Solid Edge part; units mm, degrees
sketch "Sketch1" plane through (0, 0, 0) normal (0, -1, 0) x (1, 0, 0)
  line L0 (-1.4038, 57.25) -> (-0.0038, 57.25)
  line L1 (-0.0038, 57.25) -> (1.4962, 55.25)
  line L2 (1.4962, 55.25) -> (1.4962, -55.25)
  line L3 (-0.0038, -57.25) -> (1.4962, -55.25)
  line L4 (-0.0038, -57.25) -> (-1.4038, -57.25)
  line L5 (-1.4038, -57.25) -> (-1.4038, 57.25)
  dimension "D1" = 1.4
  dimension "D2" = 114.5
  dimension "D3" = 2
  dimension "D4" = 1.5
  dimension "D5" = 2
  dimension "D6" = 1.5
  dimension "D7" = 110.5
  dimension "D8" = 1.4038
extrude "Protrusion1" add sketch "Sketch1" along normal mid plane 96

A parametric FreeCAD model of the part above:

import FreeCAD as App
import Part
import Sketcher

V = App.Vector


def add_polygon(sketch, points):
    """Adds a closed chain of lines whose ends are joined by coincident constraints."""
    first, n = sketch.GeometryCount, len(points)
    for a, b in zip(points, points[1:] + points[:1]):
        sketch.addGeometry(Part.LineSegment(App.Vector(*a, 0), App.Vector(*b, 0)), False)
    for i in range(n):
        sketch.addConstraint(Sketcher.Constraint("Coincident", first + i, 2, first + (i + 1) % n, 1))

doc = App.newDocument("Part")
body = doc.addObject("PartDesign::Body", "Body")

# Sketch on XZ plane
sketch1 = body.newObject("Sketcher::SketchObject", "Sketch")
sketch1.AttachmentSupport = (doc.getObject("XZ_Plane"), [""])
sketch1.MapMode = "FlatFace"
add_polygon(sketch1, [(-0.0038, 57.25), (-1.4038, 57.25), (-1.4038, -57.25), (-0.0038, -57.25), (1.4962, -55.25), (1.4962, 55.25)])  # lines 0-5
sketch1.addConstraint([
    Sketcher.Constraint("Horizontal", 0),
    Sketcher.Constraint("Vertical", 1),
    Sketcher.Constraint("Horizontal", 2),
    Sketcher.Constraint("Vertical", 4),
    Sketcher.Constraint("Symmetric", 2, 2, 5, 2, -1),
    Sketcher.Constraint("Equal", 3, 5),
    Sketcher.Constraint("DistanceX", 0, 2, 0, 1, 1.4),
    Sketcher.Constraint("DistanceY", 1, 2, 1, 1, 114.5),
    Sketcher.Constraint("DistanceY", 4, 1, 4, 2, 110.5),
    Sketcher.Constraint("Distance", 3, 2.5),
    Sketcher.Constraint("DistanceX", 0, 2, -1, 1, 1.4038),
])
pad1 = body.newObject("PartDesign::Pad", "Pad")
pad1.Profile = sketch1
pad1.Length = 96
pad1.Midplane = True

doc.recompute()
